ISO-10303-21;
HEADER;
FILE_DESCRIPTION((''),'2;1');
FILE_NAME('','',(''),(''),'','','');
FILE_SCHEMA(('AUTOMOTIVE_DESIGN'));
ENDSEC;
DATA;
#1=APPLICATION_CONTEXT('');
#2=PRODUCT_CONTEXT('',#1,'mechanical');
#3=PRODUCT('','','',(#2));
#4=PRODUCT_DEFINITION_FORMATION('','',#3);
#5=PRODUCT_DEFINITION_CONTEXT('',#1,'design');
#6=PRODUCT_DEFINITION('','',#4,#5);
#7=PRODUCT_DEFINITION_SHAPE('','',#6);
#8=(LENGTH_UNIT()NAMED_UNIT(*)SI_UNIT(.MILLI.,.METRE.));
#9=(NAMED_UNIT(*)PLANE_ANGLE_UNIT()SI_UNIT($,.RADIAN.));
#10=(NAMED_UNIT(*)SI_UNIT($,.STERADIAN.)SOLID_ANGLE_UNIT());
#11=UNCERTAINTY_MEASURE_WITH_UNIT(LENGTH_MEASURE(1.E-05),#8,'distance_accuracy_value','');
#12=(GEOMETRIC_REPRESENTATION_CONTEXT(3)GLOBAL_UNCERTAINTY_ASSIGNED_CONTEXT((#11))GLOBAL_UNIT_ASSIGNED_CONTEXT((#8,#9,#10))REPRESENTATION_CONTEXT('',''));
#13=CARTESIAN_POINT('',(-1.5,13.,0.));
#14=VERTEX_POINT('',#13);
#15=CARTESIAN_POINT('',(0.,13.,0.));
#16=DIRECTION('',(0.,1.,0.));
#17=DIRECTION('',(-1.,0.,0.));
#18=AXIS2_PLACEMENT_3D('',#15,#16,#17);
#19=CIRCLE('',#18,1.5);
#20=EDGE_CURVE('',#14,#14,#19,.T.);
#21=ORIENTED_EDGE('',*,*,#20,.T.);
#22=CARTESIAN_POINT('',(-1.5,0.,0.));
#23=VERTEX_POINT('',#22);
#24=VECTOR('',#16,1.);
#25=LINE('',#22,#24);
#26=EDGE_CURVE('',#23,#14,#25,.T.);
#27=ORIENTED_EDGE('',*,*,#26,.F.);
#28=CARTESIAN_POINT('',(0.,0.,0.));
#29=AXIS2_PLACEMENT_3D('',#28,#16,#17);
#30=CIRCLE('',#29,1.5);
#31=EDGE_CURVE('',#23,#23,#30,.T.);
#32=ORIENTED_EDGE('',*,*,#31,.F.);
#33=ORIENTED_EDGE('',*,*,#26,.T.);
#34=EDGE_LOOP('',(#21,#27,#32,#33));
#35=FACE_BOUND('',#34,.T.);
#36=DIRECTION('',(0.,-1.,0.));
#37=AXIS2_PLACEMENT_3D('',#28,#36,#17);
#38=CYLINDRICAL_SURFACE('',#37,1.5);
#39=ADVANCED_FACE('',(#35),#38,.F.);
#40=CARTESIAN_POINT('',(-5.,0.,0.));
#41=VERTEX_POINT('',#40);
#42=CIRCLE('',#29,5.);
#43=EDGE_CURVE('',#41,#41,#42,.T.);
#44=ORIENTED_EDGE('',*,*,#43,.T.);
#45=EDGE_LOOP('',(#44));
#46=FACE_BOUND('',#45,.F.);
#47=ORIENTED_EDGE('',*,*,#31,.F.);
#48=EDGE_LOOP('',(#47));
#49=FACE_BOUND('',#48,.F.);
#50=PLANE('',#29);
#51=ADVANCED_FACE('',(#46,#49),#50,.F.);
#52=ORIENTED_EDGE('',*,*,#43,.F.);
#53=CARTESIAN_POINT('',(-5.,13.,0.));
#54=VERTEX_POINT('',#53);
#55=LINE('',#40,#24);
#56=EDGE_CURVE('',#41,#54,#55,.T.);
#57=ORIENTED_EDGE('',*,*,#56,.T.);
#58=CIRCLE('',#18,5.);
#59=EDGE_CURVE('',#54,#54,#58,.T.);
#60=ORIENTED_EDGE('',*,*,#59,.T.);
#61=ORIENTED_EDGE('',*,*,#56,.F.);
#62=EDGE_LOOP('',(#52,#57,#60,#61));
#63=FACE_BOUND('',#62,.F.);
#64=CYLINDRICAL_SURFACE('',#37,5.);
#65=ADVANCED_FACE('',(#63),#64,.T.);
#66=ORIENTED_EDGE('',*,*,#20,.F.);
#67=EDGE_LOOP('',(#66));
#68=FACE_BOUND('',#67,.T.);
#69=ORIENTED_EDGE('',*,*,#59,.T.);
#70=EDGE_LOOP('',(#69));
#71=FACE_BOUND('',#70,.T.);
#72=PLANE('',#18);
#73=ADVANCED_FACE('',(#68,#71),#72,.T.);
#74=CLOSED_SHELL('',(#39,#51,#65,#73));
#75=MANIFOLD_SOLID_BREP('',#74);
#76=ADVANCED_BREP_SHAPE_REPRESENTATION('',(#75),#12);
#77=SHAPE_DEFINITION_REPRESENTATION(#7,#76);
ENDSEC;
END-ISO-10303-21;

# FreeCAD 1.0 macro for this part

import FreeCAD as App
import Part
import Sketcher
Q = App.Units.Quantity

doc = App.newDocument("Part")
params = doc.addObject("Spreadsheet::Sheet", "Params")
for row, (alias, value) in enumerate([
    ("sketch1_diameter", "10 mm"),
    ("sketch1_diameter2", "3 mm"),
    ("pad1_length", "13 mm"),
], start=1):
    params.set(f"A{row}", alias)
    params.set(f"B{row}", "=" + value)
    params.setAlias(f"B{row}", alias)

body = doc.addObject("PartDesign::Body", "Body")

# Sketch on XZ plane
sketch1 = doc.addObject("Sketcher::SketchObject", "Sketch")
body.addObject(sketch1)
sketch1.AttachmentSupport = (doc.XZ_Plane, [""])
sketch1.MapMode = "FlatFace"
sketch1.addGeometry([
    Part.Circle(App.Vector(0, 0, 0), App.Vector(0, 0, 1), 5),
    Part.Circle(App.Vector(0, 0, 0), App.Vector(0, 0, 1), 1.5),
], False)
sketch1.addConstraint([
    Sketcher.Constraint("Coincident", 0, 3, -1, 1),
    Sketcher.Constraint("Coincident", 1, 3, -1, 1),
    Sketcher.Constraint("Diameter", 0, Q("10 mm")),
    Sketcher.Constraint("Diameter", 1, Q("3 mm")),
])
sketch1.setExpression("Constraints[2]", "Params.sketch1_diameter")
sketch1.setExpression("Constraints[3]", "Params.sketch1_diameter2")
pad1 = doc.addObject("PartDesign::Pad", "Pad")
body.addObject(pad1)
pad1.Profile = sketch1
pad1.setExpression("Length", "Params.pad1_length")
pad1.Reversed = True

doc.recompute()
